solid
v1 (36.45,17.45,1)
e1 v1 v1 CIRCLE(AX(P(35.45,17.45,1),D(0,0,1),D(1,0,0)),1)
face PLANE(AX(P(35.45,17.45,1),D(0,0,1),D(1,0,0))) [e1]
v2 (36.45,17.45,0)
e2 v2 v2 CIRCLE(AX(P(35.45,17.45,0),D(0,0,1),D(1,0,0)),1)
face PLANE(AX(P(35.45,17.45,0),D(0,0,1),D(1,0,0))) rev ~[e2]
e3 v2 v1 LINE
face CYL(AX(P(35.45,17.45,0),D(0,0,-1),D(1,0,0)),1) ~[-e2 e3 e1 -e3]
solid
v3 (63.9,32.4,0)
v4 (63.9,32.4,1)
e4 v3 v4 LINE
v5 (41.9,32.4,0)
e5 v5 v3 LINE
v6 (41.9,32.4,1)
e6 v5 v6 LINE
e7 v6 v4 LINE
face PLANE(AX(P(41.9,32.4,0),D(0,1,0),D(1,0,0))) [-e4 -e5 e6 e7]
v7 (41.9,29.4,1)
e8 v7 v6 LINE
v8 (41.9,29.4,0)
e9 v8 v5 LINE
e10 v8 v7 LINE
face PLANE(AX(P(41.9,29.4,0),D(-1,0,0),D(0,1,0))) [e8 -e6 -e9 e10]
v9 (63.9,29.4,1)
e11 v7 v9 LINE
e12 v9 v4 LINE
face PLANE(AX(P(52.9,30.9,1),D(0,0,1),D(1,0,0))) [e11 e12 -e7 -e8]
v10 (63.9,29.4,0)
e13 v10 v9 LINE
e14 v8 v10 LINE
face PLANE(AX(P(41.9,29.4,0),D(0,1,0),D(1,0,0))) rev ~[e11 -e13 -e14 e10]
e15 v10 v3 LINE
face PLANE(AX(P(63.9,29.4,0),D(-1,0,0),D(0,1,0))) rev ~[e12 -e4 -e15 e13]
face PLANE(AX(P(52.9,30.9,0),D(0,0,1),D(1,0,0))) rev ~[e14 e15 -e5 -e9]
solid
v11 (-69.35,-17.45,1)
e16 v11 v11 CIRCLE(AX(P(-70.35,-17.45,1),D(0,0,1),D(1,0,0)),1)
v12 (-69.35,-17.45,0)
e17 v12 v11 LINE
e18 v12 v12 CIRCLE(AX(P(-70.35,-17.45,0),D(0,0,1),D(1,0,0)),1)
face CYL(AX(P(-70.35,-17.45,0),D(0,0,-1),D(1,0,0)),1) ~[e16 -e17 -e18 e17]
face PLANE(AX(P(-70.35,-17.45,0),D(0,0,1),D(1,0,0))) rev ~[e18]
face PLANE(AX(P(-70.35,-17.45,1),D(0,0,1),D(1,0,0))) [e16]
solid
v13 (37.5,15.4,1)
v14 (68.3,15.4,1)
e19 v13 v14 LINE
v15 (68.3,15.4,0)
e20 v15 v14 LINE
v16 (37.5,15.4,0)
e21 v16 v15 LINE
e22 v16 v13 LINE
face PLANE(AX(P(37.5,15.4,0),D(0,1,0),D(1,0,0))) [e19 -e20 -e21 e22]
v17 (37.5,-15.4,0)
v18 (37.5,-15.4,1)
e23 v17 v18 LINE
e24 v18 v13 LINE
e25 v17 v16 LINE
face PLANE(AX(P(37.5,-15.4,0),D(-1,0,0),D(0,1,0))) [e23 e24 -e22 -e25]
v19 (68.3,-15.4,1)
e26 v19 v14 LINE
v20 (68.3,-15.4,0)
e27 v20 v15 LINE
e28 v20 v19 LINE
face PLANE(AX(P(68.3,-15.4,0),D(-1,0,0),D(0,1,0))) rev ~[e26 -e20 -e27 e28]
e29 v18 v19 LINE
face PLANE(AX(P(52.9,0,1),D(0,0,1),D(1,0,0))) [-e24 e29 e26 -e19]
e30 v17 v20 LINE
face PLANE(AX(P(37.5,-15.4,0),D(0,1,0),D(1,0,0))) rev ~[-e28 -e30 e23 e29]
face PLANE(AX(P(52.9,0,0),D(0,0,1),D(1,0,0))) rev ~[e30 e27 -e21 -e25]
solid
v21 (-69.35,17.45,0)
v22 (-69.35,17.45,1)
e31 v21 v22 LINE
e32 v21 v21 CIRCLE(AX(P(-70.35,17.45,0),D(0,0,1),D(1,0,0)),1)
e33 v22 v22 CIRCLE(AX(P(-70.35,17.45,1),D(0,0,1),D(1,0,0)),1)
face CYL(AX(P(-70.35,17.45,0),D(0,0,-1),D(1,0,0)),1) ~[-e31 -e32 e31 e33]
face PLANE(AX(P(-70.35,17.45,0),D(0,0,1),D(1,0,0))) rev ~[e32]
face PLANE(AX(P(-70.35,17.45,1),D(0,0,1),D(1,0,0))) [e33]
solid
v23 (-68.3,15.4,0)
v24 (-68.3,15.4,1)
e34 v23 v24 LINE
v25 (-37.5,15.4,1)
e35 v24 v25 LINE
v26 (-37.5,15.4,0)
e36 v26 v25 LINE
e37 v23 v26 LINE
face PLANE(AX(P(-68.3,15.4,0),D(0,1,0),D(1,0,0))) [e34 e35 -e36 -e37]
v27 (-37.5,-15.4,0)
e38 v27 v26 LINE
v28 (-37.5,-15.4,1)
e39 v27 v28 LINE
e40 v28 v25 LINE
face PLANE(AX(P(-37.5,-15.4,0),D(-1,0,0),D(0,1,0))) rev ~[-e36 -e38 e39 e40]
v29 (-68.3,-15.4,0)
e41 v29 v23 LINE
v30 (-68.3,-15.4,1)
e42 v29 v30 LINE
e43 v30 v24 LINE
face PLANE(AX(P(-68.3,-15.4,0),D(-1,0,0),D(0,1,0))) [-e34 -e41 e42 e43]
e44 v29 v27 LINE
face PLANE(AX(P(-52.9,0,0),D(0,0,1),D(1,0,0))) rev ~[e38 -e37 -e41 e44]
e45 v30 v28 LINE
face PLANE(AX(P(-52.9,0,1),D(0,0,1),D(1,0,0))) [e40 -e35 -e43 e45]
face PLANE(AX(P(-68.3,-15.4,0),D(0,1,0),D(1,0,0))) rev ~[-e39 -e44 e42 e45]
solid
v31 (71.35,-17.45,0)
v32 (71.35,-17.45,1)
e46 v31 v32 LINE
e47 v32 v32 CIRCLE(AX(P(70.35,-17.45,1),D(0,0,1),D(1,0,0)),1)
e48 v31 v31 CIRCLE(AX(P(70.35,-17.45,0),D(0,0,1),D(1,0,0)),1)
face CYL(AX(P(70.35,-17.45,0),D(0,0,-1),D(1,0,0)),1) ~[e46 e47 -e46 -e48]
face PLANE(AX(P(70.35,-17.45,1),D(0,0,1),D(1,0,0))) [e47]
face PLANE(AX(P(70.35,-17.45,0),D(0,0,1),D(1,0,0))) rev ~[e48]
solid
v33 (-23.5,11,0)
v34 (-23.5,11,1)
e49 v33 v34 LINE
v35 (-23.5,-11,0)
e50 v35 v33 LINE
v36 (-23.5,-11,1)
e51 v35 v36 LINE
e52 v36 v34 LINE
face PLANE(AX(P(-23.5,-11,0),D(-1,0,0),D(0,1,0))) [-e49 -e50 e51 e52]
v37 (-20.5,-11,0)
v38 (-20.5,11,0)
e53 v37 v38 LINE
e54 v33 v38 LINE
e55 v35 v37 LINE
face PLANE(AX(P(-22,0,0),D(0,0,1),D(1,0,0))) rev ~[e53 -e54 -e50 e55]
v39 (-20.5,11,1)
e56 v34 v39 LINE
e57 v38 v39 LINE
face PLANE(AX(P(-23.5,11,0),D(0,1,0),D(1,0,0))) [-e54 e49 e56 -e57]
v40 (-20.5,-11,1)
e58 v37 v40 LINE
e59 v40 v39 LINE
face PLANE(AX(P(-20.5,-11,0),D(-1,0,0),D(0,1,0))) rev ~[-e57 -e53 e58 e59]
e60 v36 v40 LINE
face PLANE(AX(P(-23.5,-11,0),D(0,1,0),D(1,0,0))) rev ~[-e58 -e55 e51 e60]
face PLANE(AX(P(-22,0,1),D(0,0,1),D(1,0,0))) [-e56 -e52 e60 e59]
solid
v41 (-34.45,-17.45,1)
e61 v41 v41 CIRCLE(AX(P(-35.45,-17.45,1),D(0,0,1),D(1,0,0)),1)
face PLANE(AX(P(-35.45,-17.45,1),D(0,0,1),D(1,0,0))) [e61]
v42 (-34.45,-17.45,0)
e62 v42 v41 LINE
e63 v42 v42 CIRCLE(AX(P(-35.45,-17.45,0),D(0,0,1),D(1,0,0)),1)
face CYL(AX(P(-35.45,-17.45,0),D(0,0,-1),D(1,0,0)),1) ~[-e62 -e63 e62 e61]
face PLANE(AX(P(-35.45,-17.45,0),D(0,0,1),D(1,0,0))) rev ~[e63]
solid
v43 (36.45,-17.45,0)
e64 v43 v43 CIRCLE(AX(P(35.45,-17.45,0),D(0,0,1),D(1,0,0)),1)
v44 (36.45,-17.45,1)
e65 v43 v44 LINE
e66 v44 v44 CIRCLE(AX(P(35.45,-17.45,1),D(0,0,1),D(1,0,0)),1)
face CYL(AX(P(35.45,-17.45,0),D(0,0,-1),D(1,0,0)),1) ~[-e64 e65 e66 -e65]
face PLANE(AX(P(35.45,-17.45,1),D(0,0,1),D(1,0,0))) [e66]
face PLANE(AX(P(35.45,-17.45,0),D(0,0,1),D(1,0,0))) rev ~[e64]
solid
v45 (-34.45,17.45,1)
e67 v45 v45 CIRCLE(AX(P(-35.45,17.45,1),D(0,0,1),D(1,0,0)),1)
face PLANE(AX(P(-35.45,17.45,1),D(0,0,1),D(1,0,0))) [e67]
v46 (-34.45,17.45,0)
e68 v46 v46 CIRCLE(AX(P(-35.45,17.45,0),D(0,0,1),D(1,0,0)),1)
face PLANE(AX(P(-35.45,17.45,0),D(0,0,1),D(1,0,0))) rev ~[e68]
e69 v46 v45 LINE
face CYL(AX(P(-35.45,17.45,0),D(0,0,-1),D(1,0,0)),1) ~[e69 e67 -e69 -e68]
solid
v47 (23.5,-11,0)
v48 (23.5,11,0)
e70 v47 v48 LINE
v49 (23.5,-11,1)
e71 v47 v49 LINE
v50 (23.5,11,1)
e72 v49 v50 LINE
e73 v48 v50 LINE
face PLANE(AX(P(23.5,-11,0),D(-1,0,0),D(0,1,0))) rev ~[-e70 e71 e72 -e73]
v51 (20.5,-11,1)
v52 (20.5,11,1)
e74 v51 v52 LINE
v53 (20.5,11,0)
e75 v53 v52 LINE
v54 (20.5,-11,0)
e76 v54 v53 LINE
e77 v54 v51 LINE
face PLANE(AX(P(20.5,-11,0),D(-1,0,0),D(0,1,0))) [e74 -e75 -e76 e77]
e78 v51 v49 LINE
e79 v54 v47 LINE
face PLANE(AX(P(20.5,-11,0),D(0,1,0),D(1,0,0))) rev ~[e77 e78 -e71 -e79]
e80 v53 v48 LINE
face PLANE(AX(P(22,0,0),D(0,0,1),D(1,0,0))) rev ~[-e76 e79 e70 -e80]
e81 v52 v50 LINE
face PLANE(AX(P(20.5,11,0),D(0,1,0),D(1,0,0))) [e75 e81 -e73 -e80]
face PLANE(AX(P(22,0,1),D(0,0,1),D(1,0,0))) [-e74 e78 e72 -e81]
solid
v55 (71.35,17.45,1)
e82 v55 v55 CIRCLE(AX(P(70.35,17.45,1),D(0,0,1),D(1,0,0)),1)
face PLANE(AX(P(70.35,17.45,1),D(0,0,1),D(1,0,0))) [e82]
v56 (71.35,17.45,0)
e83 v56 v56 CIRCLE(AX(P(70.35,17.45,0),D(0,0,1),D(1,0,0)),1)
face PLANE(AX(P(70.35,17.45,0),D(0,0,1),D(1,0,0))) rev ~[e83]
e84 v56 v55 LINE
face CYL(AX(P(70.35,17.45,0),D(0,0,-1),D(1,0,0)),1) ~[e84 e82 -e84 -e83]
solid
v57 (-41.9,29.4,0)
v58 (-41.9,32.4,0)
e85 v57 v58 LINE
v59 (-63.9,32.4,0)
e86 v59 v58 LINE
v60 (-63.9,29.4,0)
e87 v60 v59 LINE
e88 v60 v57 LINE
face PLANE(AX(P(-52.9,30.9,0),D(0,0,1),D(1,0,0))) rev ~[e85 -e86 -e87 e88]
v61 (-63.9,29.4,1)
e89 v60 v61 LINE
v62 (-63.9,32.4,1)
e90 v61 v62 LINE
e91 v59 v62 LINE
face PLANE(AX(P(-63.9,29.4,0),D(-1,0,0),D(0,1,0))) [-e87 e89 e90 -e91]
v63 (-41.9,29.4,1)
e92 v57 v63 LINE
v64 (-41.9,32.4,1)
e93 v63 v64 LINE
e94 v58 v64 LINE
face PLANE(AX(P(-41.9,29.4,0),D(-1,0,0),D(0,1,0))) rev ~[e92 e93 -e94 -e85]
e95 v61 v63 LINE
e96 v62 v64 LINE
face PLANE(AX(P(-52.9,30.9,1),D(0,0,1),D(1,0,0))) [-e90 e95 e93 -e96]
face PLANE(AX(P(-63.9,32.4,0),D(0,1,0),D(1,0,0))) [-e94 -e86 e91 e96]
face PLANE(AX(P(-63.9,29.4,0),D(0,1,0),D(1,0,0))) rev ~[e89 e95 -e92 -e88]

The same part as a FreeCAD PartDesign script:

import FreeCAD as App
import Part
import Sketcher

V = App.Vector
Q = App.Units.Quantity

doc = App.newDocument("Part")
body = doc.addObject("PartDesign::Body", "Body")
body.AllowCompound = True

sketch1 = doc.addObject("Sketcher::SketchObject", "Sketch")
body.addObject(sketch1)
sketch1.AttachmentSupport = (doc.XY_Plane, [""])
sketch1.MapMode = "FlatFace"
sketch1.addGeometry([
    Part.LineSegment(V(20.5, 11, 0), V(20.5, -11, 0)),
    Part.LineSegment(V(20.5, -11, 0), V(23.5, -11, 0)),
    Part.LineSegment(V(23.5, -11, 0), V(23.5, 11, 0)),
    Part.LineSegment(V(23.5, 11, 0), V(20.5, 11, 0)),
    Part.LineSegment(V(41.9, 32.4, 0), V(41.9, 29.4, 0)),
    Part.LineSegment(V(41.9, 29.4, 0), V(63.9, 29.4, 0)),
    Part.LineSegment(V(63.9, 29.4, 0), V(63.9, 32.4, 0)),
    Part.LineSegment(V(63.9, 32.4, 0), V(41.9, 32.4, 0)),
    Part.LineSegment(V(-63.9, 32.4, 0), V(-63.9, 29.4, 0)),
    Part.LineSegment(V(-63.9, 29.4, 0), V(-41.9, 29.4, 0)),
    Part.LineSegment(V(-41.9, 29.4, 0), V(-41.9, 32.4, 0)),
    Part.LineSegment(V(-41.9, 32.4, 0), V(-63.9, 32.4, 0)),
    Part.LineSegment(V(-23.5, 11, 0), V(-23.5, -11, 0)),
    Part.LineSegment(V(-23.5, -11, 0), V(-20.5, -11, 0)),
    Part.LineSegment(V(-20.5, -11, 0), V(-20.5, 11, 0)),
    Part.LineSegment(V(-20.5, 11, 0), V(-23.5, 11, 0)),
    Part.LineSegment(V(-68.3, 15.4, 0), V(-68.3, -15.4, 0)),
    Part.LineSegment(V(-68.3, -15.4, 0), V(-37.5, -15.4, 0)),
    Part.LineSegment(V(-37.5, -15.4, 0), V(-37.5, 15.4, 0)),
    Part.LineSegment(V(-37.5, 15.4, 0), V(-68.3, 15.4, 0)),
    Part.LineSegment(V(37.5, 15.4, 0), V(37.5, -15.4, 0)),
    Part.LineSegment(V(37.5, -15.4, 0), V(68.3, -15.4, 0)),
    Part.LineSegment(V(68.3, -15.4, 0), V(68.3, 15.4, 0)),
    Part.LineSegment(V(68.3, 15.4, 0), V(37.5, 15.4, 0)),
    Part.Circle(V(35.5, -17.4, 0), V(0, 0, 1), 1),
    Part.Circle(V(35.5, 17.4, 0), V(0, 0, 1), 1),
    Part.Circle(V(-70.3, -17.4, 0), V(0, 0, 1), 1),
    Part.Circle(V(-70.3, 17.4, 0), V(0, 0, 1), 1),
    Part.Circle(V(70.3, 17.4, 0), V(0, 0, 1), 1),
    Part.Circle(V(70.3, -17.4, 0), V(0, 0, 1), 1),
    Part.Circle(V(-35.5, -17.4, 0), V(0, 0, 1), 1),
    Part.Circle(V(-35.5, 17.4, 0), V(0, 0, 1), 1),
], False)
sketch1.addConstraint([
    Sketcher.Constraint("Coincident", 0, 2, 1, 1),
    Sketcher.Constraint("Coincident", 1, 2, 2, 1),
    Sketcher.Constraint("Coincident", 2, 2, 3, 1),
    Sketcher.Constraint("Coincident", 3, 2, 0, 1),
    Sketcher.Constraint("Coincident", 4, 2, 5, 1),
    Sketcher.Constraint("Coincident", 5, 2, 6, 1),
    Sketcher.Constraint("Coincident", 6, 2, 7, 1),
    Sketcher.Constraint("Coincident", 7, 2, 4, 1),
    Sketcher.Constraint("Coincident", 8, 2, 9, 1),
    Sketcher.Constraint("Coincident", 9, 2, 10, 1),
    Sketcher.Constraint("Coincident", 10, 2, 11, 1),
    Sketcher.Constraint("Coincident", 11, 2, 8, 1),
    Sketcher.Constraint("Coincident", 12, 2, 13, 1),
    Sketcher.Constraint("Coincident", 13, 2, 14, 1),
    Sketcher.Constraint("Coincident", 14, 2, 15, 1),
    Sketcher.Constraint("Coincident", 15, 2, 12, 1),
    Sketcher.Constraint("Coincident", 16, 2, 17, 1),
    Sketcher.Constraint("Coincident", 17, 2, 18, 1),
    Sketcher.Constraint("Coincident", 18, 2, 19, 1),
    Sketcher.Constraint("Coincident", 19, 2, 16, 1),
    Sketcher.Constraint("Coincident", 20, 2, 21, 1),
    Sketcher.Constraint("Coincident", 21, 2, 22, 1),
    Sketcher.Constraint("Coincident", 22, 2, 23, 1),
    Sketcher.Constraint("Coincident", 23, 2, 20, 1),
    Sketcher.Constraint("Vertical", 0),
    Sketcher.Constraint("Horizontal", 1),
    Sketcher.Constraint("Vertical", 2),
    Sketcher.Constraint("Horizontal", 3),
    Sketcher.Constraint("Vertical", 4),
    Sketcher.Constraint("Horizontal", 5),
    Sketcher.Constraint("Vertical", 6),
    Sketcher.Constraint("Horizontal", 7),
    Sketcher.Constraint("Vertical", 8),
    Sketcher.Constraint("Horizontal", 9),
    Sketcher.Constraint("Vertical", 10),
    Sketcher.Constraint("Horizontal", 11),
    Sketcher.Constraint("Vertical", 12),
    Sketcher.Constraint("Horizontal", 13),
    Sketcher.Constraint("Vertical", 14),
    Sketcher.Constraint("Horizontal", 15),
    Sketcher.Constraint("Vertical", 16),
    Sketcher.Constraint("Horizontal", 17),
    Sketcher.Constraint("Vertical", 18),
    Sketcher.Constraint("Horizontal", 19),
    Sketcher.Constraint("Vertical", 20),
    Sketcher.Constraint("Horizontal", 21),
    Sketcher.Constraint("Vertical", 22),
    Sketcher.Constraint("Horizontal", 23),
    Sketcher.Constraint("Equal", 24, 25),
    Sketcher.Constraint("Equal", 25, 26),
    Sketcher.Constraint("Equal", 26, 27),
    Sketcher.Constraint("Equal", 27, 28),
    Sketcher.Constraint("Equal", 28, 29),
    Sketcher.Constraint("Equal", 29, 30),
    Sketcher.Constraint("Equal", 30, 31),
    Sketcher.Constraint("Symmetric", 26, 3, 28, 3, -1, 1),
    Sketcher.Constraint("Symmetric", 27, 3, 29, 3, -1, 1),
    Sketcher.Constraint("Symmetric", 25, 3, 30, 3, -1, 1),
    Sketcher.Constraint("Symmetric", 24, 3, 31, 3, -1, 1),
    Sketcher.Constraint("Symmetric", 2, 2, 12, 2, -1, 1),
    Sketcher.Constraint("Symmetric", 0, 2, 14, 2, -1, 1),
    Sketcher.Constraint("Symmetric", 18, 2, 20, 2, -1, 1),
    Sketcher.Constraint("Symmetric", 16, 2, 22, 2, -1, 1),
    Sketcher.Constraint("Symmetric", 27, 3, 28, 3, -2),
    Sketcher.Constraint("Symmetric", 24, 3, 30, 3, -2),
    Sketcher.Constraint("Symmetric", 5, 2, 8, 2, -2),
    Sketcher.Constraint("Symmetric", 7, 2, 10, 2, -2),
    Sketcher.Constraint("Horizontal", 24, 3, 26, 3),
    Sketcher.Constraint("Horizontal", 1, 2, 12, 2),
    Sketcher.Constraint("Horizontal", 17, 2, 20, 2),
    Sketcher.Constraint("Equal", 11, 0),
    Sketcher.Constraint("Equal", 15, 4),
    Sketcher.Constraint("Equal", 23, 16),
    Sketcher.Constraint("Diameter", 24, Q("2 mm")),
    Sketcher.Constraint("DistanceX", 1, 1, 1, 2, Q("3 mm")),
    Sketcher.Constraint("DistanceX", 5, 1, 5, 2, Q("22 mm")),
    Sketcher.Constraint("DistanceX", 17, 1, 17, 2, Q("30.8 mm")),
    Sketcher.Constraint("DistanceX", 12, 2, 0, 2, Q("44 mm")),
    Sketcher.Constraint("DistanceX", 17, 2, 12, 2, Q("14 mm")),
    Sketcher.Constraint("DistanceY", 18, 2, 9, 2, Q("14 mm")),
    Sketcher.Constraint("DistanceX", -1, 1, 4, 2, Q("41.9 mm")),
    Sketcher.Constraint("DistanceY", 24, 3, 25, 3, Q("34.9 mm")),
    Sketcher.Constraint("DistanceX", 26, 3, 24, 3, Q("105.8 mm")),
    Sketcher.Constraint("DistanceX", 25, 3, 28, 3, Q("34.9 mm")),
])
pad1 = doc.addObject("PartDesign::Pad", "Pad")
body.addObject(pad1)
pad1.Profile = sketch1
pad1.Length = 1

doc.recompute()
